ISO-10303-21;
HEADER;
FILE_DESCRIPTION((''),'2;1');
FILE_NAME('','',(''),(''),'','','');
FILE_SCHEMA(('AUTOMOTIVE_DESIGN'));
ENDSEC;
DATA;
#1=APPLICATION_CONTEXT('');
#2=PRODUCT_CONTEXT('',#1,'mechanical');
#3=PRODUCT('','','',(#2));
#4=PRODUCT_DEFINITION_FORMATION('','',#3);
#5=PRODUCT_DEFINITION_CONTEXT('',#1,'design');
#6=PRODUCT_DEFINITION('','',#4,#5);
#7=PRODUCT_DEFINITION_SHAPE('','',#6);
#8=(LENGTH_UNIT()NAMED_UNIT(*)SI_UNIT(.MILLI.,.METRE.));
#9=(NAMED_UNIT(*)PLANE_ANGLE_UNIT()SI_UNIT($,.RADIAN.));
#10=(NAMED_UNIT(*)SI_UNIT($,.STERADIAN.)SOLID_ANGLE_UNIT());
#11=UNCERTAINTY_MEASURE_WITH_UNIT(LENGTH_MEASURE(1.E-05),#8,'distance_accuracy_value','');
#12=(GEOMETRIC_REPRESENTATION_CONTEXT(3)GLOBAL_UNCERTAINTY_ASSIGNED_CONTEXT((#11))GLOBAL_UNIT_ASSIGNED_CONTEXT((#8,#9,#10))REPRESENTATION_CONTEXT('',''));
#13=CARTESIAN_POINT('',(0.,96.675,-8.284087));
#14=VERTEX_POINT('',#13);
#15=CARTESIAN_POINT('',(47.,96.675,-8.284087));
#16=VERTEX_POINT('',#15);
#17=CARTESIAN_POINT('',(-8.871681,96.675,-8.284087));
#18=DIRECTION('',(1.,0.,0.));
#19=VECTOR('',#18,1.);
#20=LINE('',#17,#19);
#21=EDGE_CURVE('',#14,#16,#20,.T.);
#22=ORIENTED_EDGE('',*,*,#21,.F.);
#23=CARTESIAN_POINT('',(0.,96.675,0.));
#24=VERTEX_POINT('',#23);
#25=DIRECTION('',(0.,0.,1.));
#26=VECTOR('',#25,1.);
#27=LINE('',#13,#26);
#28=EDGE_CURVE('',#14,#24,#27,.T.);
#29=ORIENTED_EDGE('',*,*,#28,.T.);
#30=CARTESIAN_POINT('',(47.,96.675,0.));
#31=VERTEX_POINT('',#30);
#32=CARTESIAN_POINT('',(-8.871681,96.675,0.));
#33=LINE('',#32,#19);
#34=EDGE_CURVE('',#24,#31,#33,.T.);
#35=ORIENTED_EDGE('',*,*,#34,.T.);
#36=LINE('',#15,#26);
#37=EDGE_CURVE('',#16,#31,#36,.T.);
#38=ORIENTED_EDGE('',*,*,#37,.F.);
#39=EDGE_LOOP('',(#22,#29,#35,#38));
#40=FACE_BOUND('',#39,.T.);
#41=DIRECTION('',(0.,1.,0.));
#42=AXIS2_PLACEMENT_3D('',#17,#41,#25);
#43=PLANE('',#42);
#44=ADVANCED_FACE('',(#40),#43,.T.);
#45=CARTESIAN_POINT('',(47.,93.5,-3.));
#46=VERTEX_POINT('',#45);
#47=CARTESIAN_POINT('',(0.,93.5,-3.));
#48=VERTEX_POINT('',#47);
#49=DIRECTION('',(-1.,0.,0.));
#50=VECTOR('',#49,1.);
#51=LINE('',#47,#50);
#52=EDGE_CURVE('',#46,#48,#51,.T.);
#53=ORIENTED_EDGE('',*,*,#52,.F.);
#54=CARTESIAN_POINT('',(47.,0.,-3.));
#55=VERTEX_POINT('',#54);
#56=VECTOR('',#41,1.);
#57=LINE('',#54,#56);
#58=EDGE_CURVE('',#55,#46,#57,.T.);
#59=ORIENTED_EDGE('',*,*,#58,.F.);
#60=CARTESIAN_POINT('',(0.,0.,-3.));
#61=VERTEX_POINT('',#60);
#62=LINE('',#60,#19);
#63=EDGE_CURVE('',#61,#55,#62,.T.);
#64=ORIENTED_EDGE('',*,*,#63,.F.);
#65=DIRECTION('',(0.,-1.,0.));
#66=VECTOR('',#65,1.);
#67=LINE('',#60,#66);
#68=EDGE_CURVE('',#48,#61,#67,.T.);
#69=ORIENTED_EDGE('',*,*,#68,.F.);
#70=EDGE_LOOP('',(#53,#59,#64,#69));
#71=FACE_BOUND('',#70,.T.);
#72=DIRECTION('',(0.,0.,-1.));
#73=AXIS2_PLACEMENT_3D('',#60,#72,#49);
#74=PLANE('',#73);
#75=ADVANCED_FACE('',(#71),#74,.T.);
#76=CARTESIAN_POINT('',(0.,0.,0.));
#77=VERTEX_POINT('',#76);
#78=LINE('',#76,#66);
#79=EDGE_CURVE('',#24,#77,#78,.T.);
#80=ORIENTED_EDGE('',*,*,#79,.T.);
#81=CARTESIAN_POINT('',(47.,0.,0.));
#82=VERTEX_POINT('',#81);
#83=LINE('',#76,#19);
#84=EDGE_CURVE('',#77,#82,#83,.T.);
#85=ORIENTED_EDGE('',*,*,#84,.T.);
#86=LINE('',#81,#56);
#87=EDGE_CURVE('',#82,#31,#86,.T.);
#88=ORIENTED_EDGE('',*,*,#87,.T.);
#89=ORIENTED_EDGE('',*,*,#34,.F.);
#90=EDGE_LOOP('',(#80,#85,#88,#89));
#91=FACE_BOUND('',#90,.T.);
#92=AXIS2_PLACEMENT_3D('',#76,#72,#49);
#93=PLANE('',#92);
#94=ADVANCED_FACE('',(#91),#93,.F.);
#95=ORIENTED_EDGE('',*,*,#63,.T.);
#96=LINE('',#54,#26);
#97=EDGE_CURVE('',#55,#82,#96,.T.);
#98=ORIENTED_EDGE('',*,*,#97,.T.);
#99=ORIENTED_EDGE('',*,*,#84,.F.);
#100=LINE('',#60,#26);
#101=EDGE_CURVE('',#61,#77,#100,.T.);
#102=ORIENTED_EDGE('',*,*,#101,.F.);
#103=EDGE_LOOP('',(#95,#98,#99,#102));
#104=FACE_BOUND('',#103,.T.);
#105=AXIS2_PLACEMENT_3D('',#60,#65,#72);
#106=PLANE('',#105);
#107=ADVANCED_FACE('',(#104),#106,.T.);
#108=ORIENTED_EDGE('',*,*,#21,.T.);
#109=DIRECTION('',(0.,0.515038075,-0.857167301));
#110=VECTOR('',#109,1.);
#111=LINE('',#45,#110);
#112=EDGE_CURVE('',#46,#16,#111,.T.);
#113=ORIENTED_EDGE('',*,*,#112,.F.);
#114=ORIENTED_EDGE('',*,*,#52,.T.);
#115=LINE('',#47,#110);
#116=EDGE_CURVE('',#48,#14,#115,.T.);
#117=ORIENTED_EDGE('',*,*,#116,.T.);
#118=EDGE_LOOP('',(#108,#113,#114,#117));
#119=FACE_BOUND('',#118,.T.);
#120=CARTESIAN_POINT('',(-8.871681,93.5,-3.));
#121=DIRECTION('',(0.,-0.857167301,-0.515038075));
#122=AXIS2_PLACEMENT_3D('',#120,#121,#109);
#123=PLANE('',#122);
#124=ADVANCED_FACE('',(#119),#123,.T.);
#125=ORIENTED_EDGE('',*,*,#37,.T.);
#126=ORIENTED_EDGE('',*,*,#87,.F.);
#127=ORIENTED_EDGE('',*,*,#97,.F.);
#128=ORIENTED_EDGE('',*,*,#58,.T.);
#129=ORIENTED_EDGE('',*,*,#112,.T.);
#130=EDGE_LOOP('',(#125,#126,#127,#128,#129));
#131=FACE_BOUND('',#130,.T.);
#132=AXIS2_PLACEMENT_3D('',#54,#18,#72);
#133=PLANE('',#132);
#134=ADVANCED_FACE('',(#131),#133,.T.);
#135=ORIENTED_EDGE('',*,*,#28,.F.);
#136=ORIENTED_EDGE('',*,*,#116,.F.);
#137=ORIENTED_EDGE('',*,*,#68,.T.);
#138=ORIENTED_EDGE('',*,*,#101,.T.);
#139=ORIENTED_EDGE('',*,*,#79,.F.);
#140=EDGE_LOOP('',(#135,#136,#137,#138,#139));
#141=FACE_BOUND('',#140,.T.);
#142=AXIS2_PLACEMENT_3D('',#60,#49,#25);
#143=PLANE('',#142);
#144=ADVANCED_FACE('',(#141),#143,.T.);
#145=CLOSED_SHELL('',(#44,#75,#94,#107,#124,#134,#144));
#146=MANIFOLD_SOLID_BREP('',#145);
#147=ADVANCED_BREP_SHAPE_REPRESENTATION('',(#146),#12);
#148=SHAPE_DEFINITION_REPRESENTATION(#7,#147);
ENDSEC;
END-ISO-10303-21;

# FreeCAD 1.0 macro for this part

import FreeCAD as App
import Part
import Sketcher

V = App.Vector
Q = App.Units.Quantity


def add_polygon(sketch, points):
    """Adds a closed chain of lines whose ends are joined by coincident constraints."""
    first, n = sketch.GeometryCount, len(points)
    for a, b in zip(points, points[1:] + points[:1]):
        sketch.addGeometry(Part.LineSegment(App.Vector(*a, 0), App.Vector(*b, 0)), False)
    for i in range(n):
        sketch.addConstraint(Sketcher.Constraint("Coincident", first + i, 2, first + (i + 1) % n, 1))

doc = App.newDocument("Part")
body = doc.addObject("PartDesign::Body", "Body")

# Sketch on XY plane
sketch1 = doc.addObject("Sketcher::SketchObject", "Sketch")
body.addObject(sketch1)
sketch1.AttachmentSupport = (doc.XY_Plane, [""])
sketch1.MapMode = "FlatFace"
add_polygon(sketch1, [(0, 94), (0, 0), (47, 0), (47, 94)])  # lines 0-3
sketch1.addConstraint([
    Sketcher.Constraint("Vertical", 0),
    Sketcher.Constraint("Horizontal", 1),
    Sketcher.Constraint("Vertical", 2),
    Sketcher.Constraint("Horizontal", 3),
    Sketcher.Constraint("Coincident", 0, 2, -1, 1),
    Sketcher.Constraint("DistanceX", 1, 1, 1, 2, Q("47 mm")),
    Sketcher.Constraint("DistanceY", 0, 2, 0, 1, Q("93.5 mm")),
])
pad1 = doc.addObject("PartDesign::Pad", "Pad")
body.addObject(pad1)
pad1.Profile = sketch1
pad1.Length = 3
pad1.Reversed = True

# Sketch on YZ plane
sketch2 = doc.addObject("Sketcher::SketchObject", "Sketch001")
body.addObject(sketch2)
sketch2.AttachmentSupport = (doc.YZ_Plane, [""])
sketch2.MapMode = "FlatFace"
sketch2.AttachmentOffset = App.Placement(V(0, 0, 47), App.Rotation())
add_polygon(sketch2, [(93.5, -3), (96.7, -8.3), (96.7, 0), (93.5, 0)])  # lines 0-3
sketch2.addConstraint([
    Sketcher.Constraint("Vertical", 1),
    Sketcher.Constraint("Horizontal", 2),
    Sketcher.Constraint("Vertical", 3),
    Sketcher.Constraint("PointOnObject", 1, 2, -1),
    Sketcher.Constraint("DistanceY", 3, 2, 3, 1, Q("3 mm")),
    Sketcher.Constraint("Angle", 0, Q("-59 deg")),
    Sketcher.Constraint("DistanceX", -1, 1, 2, 2, Q("93.5 mm")),
    Sketcher.Constraint("DistanceX", 2, 2, 2, 1, Q("3.175 mm")),
])
pad2 = doc.addObject("PartDesign::Pad", "Pad001")
body.addObject(pad2)
pad2.Profile = sketch2
pad2.Length = 47
pad2.Reversed = True

doc.recompute()
